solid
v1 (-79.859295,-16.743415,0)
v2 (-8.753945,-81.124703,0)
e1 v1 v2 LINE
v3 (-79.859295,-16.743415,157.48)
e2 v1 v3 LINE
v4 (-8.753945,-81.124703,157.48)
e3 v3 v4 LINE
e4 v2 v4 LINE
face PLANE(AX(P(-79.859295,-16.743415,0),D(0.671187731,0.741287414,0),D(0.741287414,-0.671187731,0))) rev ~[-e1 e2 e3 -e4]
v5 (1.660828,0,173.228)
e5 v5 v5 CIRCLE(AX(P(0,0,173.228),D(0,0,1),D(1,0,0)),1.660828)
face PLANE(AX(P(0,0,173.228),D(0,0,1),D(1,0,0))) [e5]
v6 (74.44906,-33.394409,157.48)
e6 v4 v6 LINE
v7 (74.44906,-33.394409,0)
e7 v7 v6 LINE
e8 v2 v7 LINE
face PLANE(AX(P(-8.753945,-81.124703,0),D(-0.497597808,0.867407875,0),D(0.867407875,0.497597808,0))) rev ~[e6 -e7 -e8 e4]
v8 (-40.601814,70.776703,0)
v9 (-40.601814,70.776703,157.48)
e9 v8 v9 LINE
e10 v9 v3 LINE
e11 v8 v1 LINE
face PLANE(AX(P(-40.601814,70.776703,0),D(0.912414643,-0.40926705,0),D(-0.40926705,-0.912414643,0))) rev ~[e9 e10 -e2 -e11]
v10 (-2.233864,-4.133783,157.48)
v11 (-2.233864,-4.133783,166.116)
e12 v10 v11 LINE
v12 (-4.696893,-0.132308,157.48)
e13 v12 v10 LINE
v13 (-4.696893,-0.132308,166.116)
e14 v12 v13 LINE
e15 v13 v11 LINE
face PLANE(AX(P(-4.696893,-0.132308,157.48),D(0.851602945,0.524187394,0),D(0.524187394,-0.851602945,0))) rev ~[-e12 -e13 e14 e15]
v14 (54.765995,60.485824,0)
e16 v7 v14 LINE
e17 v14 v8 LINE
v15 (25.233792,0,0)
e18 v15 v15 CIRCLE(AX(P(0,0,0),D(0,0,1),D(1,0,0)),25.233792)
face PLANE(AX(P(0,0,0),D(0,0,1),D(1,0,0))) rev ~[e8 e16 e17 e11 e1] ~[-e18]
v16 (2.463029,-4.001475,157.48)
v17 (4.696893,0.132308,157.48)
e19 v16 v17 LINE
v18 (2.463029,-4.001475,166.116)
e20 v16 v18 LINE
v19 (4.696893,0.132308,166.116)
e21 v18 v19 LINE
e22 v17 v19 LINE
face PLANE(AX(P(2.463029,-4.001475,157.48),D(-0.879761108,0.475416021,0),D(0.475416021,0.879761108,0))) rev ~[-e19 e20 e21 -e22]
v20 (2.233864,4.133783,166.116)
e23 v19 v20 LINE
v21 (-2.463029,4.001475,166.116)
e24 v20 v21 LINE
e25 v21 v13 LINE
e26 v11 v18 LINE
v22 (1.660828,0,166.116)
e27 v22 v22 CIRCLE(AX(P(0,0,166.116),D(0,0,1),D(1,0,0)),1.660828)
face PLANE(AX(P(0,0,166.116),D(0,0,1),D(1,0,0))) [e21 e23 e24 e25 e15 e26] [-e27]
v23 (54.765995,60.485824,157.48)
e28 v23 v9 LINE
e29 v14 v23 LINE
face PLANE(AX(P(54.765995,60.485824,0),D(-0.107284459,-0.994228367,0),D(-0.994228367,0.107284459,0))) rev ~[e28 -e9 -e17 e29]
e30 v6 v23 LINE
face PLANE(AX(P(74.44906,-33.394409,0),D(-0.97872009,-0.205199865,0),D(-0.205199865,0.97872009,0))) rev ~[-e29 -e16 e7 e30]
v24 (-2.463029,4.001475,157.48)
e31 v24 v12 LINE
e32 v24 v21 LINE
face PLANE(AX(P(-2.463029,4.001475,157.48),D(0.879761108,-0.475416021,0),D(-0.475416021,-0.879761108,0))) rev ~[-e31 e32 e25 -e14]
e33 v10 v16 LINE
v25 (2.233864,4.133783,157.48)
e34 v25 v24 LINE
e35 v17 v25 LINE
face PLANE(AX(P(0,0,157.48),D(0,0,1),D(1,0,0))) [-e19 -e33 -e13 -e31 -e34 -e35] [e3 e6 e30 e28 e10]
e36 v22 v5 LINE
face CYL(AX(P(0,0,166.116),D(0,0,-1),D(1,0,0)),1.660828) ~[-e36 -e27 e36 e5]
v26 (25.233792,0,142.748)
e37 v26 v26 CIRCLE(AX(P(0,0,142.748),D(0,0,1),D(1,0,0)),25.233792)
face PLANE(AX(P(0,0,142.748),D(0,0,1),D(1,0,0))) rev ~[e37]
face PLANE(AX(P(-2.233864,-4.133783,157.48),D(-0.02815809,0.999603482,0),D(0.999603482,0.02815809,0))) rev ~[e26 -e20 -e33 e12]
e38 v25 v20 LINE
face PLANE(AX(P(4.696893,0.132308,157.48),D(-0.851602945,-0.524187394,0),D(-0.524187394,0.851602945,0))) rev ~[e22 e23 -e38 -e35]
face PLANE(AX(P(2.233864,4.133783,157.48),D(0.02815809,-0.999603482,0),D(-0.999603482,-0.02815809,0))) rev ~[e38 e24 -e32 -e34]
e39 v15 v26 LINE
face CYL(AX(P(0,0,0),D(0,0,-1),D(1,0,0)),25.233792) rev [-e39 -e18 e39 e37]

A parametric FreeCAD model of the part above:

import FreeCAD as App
import Part
import Sketcher
from FreeCAD import Vector
Q = App.Units.Quantity


def add_polygon(sketch, points):
    """Adds a closed chain of lines whose ends are joined by coincident constraints."""
    first, n = sketch.GeometryCount, len(points)
    for a, b in zip(points, points[1:] + points[:1]):
        sketch.addGeometry(Part.LineSegment(App.Vector(*a, 0), App.Vector(*b, 0)), False)
    for i in range(n):
        sketch.addConstraint(Sketcher.Constraint("Coincident", first + i, 2, first + (i + 1) % n, 1))

doc = App.newDocument("Part")
body = doc.addObject("PartDesign::Body", "Body")

sketch1 = body.newObject("Sketcher::SketchObject", "Sketch")
sketch1.AttachmentSupport = (doc.getObject("XY_Plane"), [""])
sketch1.MapMode = "FlatFace"
add_polygon(sketch1, [(-8.753945, -81.124703), (74.44906, -33.394409), (54.765995, 60.485824), (-40.601814, 70.776703), (-79.859295, -16.743415)])
sketch1.addConstraint(Sketcher.Constraint("Distance", 0, 95.921431))
sketch1.addConstraint(Sketcher.Constraint("Distance", 3, 95.921431))
sketch1.addConstraint(Sketcher.Constraint("Distance", 4, 95.921432))
sketch1.addConstraint(Sketcher.Constraint("DistanceX", -1, 1, 0, 2, 74.44906))
sketch1.addConstraint(Sketcher.Constraint("DistanceY", 0, 2, -1, 1, 33.394409))
sketch1.addConstraint(Sketcher.Constraint("DistanceX", 2, 2, 1, 2, 95.367809))
sketch1.addConstraint(Sketcher.Constraint("DistanceY", 1, 2, 2, 2, 10.290879))
sketch1.addConstraint(Sketcher.Constraint("DistanceY", 0, 2, 2, 2, 104.171112))
sketch1.addConstraint(Sketcher.Constraint("DistanceX", 3, 2, 2, 2, 39.257481))
sketch1.addConstraint(Sketcher.Constraint("DistanceX", 3, 2, 4, 2, 71.10535))
pad1 = body.newObject("PartDesign::Pad", "Pad")
pad1.Profile = sketch1
pad1.Length = Q("6.2 in")

sketch2 = body.newObject("Sketcher::SketchObject", "Sketch001")
sketch2.AttachmentSupport = (doc.getObject("XY_Plane"), [""])
sketch2.MapMode = "FlatFace"
sketch2.addGeometry(Part.Circle(Vector(0, 0, 0), Vector(0, 0, 1), 25), False)
sketch2.addConstraint(Sketcher.Constraint("Coincident", 0, 3, -1, 1))
sketch2.addConstraint(Sketcher.Constraint("Diameter", 0, 50.467584))
pocket1 = body.newObject("PartDesign::Pocket", "Pocket")
pocket1.Profile = sketch2
pocket1.Length = Q("5.62 in")
pocket1.Reversed = True

sketch3 = body.newObject("Sketcher::SketchObject", "Sketch002")
sketch3.AttachmentSupport = (doc.getObject("XY_Plane"), [""])
sketch3.MapMode = "FlatFace"
sketch3.AttachmentOffset = App.Placement(Vector(0, 0, 6.2 * 25.4), App.Rotation())
add_polygon(sketch3, [(2.5, -4), (4.7, 0.1), (2.2, 4.1), (-2.5, 4), (-4.7, -0.1), (-2.2, -4.1)])
sketch3.addConstraint(Sketcher.Constraint("Symmetric", 0, 2, 3, 2, -1, 1))
sketch3.addConstraint(Sketcher.Constraint("Symmetric", 1, 2, 4, 2, -1, 1))
sketch3.addConstraint(Sketcher.Constraint("Symmetric", 2, 2, 5, 2, -1, 1))
sketch3.addConstraint(Sketcher.Constraint("Equal", 0, 1))
sketch3.addConstraint(Sketcher.Constraint("Equal", 1, 2))
sketch3.addConstraint(Sketcher.Constraint("DistanceX", 2, 2, -1, 1, 2.463029))
sketch3.addConstraint(Sketcher.Constraint("DistanceX", 1, 2, 0, 2, 2.463029))
sketch3.addConstraint(Sketcher.Constraint("DistanceY", 2, 2, 1, 2, 0.132308))
sketch3.addConstraint(Sketcher.Constraint("DistanceY", 3, 2, 1, 2, 4.266091))
pad2 = body.newObject("PartDesign::Pad", "Pad001")
pad2.Profile = sketch3
pad2.Length = Q("0.34 in")

sketch4 = body.newObject("Sketcher::SketchObject", "Sketch003")
sketch4.AttachmentSupport = (doc.getObject("XY_Plane"), [""])
sketch4.MapMode = "FlatFace"
sketch4.AttachmentOffset = App.Placement(Vector(0, 0, 6.54 * 25.4), App.Rotation())
sketch4.addGeometry(Part.Circle(Vector(0, 0, 0), Vector(0, 0, 1), 1.7), False)
sketch4.addConstraint(Sketcher.Constraint("Coincident", 0, 3, -1, 1))
sketch4.addConstraint(Sketcher.Constraint("Diameter", 0, 3.321656))
pad3 = body.newObject("PartDesign::Pad", "Pad002")
pad3.Profile = sketch4
pad3.Length = Q("0.28 in")

doc.recompute()
